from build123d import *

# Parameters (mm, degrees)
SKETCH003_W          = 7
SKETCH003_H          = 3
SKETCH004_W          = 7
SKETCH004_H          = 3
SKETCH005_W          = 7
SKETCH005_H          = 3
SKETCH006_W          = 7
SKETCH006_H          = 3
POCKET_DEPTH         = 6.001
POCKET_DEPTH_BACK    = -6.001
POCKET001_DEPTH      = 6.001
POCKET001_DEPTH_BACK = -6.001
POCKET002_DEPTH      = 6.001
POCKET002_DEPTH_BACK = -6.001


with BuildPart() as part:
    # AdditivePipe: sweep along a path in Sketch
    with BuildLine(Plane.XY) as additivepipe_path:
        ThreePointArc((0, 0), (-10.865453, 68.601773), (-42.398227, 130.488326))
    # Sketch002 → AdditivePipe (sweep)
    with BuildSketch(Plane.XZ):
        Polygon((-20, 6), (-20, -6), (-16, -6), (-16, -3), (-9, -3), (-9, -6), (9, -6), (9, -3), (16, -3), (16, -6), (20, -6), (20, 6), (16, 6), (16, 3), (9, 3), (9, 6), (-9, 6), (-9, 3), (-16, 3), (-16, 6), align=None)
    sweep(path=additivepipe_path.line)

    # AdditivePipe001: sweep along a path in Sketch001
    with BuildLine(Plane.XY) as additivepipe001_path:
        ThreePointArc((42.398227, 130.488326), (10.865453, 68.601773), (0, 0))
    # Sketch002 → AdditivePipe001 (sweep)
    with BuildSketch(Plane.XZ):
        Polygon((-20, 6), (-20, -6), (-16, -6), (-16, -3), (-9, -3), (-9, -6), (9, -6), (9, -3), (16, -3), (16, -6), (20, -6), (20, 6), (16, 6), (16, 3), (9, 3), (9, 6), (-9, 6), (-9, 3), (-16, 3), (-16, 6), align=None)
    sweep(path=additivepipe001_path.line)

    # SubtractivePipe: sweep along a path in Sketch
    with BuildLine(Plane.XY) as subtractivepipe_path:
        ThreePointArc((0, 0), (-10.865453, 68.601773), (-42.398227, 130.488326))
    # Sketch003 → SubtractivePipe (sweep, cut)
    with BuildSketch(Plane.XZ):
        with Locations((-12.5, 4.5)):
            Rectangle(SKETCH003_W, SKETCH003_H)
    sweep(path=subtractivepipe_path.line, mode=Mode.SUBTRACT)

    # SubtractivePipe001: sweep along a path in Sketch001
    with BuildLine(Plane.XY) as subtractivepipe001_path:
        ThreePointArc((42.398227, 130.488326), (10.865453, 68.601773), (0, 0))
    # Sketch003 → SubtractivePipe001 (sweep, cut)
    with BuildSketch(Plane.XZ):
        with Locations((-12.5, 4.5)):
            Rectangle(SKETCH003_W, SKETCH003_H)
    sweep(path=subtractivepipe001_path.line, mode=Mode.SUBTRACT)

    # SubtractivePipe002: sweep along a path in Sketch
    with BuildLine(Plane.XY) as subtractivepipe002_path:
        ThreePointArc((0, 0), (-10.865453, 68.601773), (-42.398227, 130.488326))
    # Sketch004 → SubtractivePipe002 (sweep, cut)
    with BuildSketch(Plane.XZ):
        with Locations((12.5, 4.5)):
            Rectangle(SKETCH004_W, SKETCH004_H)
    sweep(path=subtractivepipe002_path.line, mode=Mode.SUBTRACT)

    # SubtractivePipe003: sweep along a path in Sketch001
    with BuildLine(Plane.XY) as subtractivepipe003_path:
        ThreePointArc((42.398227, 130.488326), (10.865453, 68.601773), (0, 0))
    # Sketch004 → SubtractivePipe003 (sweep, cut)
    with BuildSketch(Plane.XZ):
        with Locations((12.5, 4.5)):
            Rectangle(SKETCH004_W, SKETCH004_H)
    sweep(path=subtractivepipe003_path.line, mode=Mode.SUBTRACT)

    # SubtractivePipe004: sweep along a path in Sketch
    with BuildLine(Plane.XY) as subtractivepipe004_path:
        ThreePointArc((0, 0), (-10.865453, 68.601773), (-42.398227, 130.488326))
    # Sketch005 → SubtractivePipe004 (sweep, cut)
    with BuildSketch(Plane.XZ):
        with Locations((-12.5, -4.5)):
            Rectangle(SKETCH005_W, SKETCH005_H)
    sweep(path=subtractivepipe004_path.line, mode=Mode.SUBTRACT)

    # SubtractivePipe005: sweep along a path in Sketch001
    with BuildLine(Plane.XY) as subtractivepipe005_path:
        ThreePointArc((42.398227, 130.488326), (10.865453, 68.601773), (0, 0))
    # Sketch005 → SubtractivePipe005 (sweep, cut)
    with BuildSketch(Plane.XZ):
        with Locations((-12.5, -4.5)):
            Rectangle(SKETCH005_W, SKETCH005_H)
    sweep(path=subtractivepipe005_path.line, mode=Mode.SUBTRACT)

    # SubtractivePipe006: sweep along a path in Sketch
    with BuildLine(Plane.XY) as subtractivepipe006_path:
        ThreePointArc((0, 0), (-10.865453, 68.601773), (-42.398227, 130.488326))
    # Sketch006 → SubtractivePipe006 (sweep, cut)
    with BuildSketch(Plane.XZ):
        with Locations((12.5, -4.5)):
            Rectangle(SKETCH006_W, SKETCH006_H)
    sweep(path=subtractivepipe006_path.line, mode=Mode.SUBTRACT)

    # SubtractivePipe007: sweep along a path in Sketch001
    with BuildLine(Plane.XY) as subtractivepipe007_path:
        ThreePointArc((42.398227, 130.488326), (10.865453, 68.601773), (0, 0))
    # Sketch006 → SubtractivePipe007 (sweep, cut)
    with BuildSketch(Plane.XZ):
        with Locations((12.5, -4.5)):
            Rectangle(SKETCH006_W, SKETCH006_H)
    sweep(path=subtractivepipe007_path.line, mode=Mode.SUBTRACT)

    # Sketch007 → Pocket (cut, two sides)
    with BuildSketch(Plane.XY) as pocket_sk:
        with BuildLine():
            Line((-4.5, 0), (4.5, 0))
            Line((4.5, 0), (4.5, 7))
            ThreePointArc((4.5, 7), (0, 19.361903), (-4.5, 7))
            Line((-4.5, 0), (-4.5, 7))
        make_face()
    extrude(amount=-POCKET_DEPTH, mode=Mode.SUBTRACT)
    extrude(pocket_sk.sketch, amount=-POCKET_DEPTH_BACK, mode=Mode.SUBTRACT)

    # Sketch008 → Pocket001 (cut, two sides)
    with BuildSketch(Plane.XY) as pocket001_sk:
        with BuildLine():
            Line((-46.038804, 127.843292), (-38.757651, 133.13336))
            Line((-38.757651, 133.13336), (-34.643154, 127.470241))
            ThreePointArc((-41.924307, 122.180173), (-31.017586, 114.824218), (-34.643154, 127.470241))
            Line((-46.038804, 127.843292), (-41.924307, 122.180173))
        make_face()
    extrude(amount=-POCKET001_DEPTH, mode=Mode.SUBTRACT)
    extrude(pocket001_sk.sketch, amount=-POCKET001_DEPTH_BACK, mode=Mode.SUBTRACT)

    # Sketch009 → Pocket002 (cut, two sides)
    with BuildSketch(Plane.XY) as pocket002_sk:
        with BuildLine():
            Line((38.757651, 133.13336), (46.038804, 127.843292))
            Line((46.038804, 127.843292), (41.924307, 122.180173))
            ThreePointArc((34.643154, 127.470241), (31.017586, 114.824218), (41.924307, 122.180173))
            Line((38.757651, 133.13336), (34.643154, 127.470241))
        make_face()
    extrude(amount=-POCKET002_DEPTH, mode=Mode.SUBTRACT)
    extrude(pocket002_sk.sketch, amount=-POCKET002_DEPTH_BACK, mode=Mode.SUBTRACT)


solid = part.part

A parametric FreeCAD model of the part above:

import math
import FreeCAD as App
import Part
import Sketcher

V = App.Vector
Q = App.Units.Quantity

doc = App.newDocument("Part")
body = doc.addObject("PartDesign::Body", "Body")

sketch1 = doc.addObject("Sketcher::SketchObject", "Sketch")
body.addObject(sketch1)
sketch1.AttachmentSupport = (doc.XZ_Plane, [""])
sketch1.MapMode = "FlatFace"
sketch1.addGeometry(Part.LineSegment(V(-20, 6, 0), V(-20, -6, 0)), False)
sketch1.addGeometry(Part.LineSegment(V(-20, -6, 0), V(-16, -6, 0)), False)
sketch1.addGeometry(Part.LineSegment(V(-16, -6, 0), V(-16, -3, 0)), False)
sketch1.addGeometry(Part.LineSegment(V(-16, -3, 0), V(-9, -3, 0)), False)
sketch1.addGeometry(Part.LineSegment(V(-9, -3, 0), V(-9, -6, 0)), False)
sketch1.addGeometry(Part.LineSegment(V(-9, -6, 0), V(9, -6, 0)), False)
sketch1.addGeometry(Part.LineSegment(V(9, -6, 0), V(9, -3, 0)), False)
sketch1.addGeometry(Part.LineSegment(V(9, -3, 0), V(16, -3, 0)), False)
sketch1.addGeometry(Part.LineSegment(V(16, -3, 0), V(16, -6, 0)), False)
sketch1.addGeometry(Part.LineSegment(V(16, -6, 0), V(20, -6, 0)), False)
sketch1.addGeometry(Part.LineSegment(V(20, -6, 0), V(20, 6, 0)), False)
sketch1.addGeometry(Part.LineSegment(V(20, 6, 0), V(16, 6, 0)), False)
sketch1.addGeometry(Part.LineSegment(V(16, 6, 0), V(16, 3, 0)), False)
sketch1.addGeometry(Part.LineSegment(V(16, 3, 0), V(9, 3, 0)), False)
sketch1.addGeometry(Part.LineSegment(V(9, 3, 0), V(9, 6, 0)), False)
sketch1.addGeometry(Part.LineSegment(V(9, 6, 0), V(-9, 6, 0)), False)
sketch1.addGeometry(Part.LineSegment(V(-9, 6, 0), V(-9, 3, 0)), False)
sketch1.addGeometry(Part.LineSegment(V(-9, 3, 0), V(-16, 3, 0)), False)
sketch1.addGeometry(Part.LineSegment(V(-16, 3, 0), V(-16, 6, 0)), False)
sketch1.addGeometry(Part.LineSegment(V(-16, 6, 0), V(-20, 6, 0)), False)
sketch1.addConstraint(Sketcher.Constraint("Coincident", 0, 2, 1, 1))
sketch1.addConstraint(Sketcher.Constraint("Coincident", 1, 2, 2, 1))
sketch1.addConstraint(Sketcher.Constraint("Coincident", 2, 2, 3, 1))
sketch1.addConstraint(Sketcher.Constraint("Coincident", 3, 2, 4, 1))
sketch1.addConstraint(Sketcher.Constraint("Coincident", 4, 2, 5, 1))
sketch1.addConstraint(Sketcher.Constraint("Coincident", 5, 2, 6, 1))
sketch1.addConstraint(Sketcher.Constraint("Coincident", 6, 2, 7, 1))
sketch1.addConstraint(Sketcher.Constraint("Coincident", 7, 2, 8, 1))
sketch1.addConstraint(Sketcher.Constraint("Coincident", 8, 2, 9, 1))
sketch1.addConstraint(Sketcher.Constraint("Coincident", 9, 2, 10, 1))
sketch1.addConstraint(Sketcher.Constraint("Coincident", 10, 2, 11, 1))
sketch1.addConstraint(Sketcher.Constraint("Coincident", 11, 2, 12, 1))
sketch1.addConstraint(Sketcher.Constraint("Coincident", 12, 2, 13, 1))
sketch1.addConstraint(Sketcher.Constraint("Coincident", 13, 2, 14, 1))
sketch1.addConstraint(Sketcher.Constraint("Coincident", 14, 2, 15, 1))
sketch1.addConstraint(Sketcher.Constraint("Coincident", 15, 2, 16, 1))
sketch1.addConstraint(Sketcher.Constraint("Coincident", 16, 2, 17, 1))
sketch1.addConstraint(Sketcher.Constraint("Coincident", 17, 2, 18, 1))
sketch1.addConstraint(Sketcher.Constraint("Coincident", 18, 2, 19, 1))
sketch1.addConstraint(Sketcher.Constraint("Coincident", 19, 2, 0, 1))
sketch1.addConstraint(Sketcher.Constraint("Vertical", 0))
sketch1.addConstraint(Sketcher.Constraint("Horizontal", 1))
sketch1.addConstraint(Sketcher.Constraint("Vertical", 2))
sketch1.addConstraint(Sketcher.Constraint("Horizontal", 3))
sketch1.addConstraint(Sketcher.Constraint("Vertical", 4))
sketch1.addConstraint(Sketcher.Constraint("Horizontal", 5))
sketch1.addConstraint(Sketcher.Constraint("Vertical", 6))
sketch1.addConstraint(Sketcher.Constraint("Horizontal", 7))
sketch1.addConstraint(Sketcher.Constraint("Vertical", 8))
sketch1.addConstraint(Sketcher.Constraint("Horizontal", 9))
sketch1.addConstraint(Sketcher.Constraint("Vertical", 10))
sketch1.addConstraint(Sketcher.Constraint("Horizontal", 11))
sketch1.addConstraint(Sketcher.Constraint("Vertical", 12))
sketch1.addConstraint(Sketcher.Constraint("Horizontal", 13))
sketch1.addConstraint(Sketcher.Constraint("Vertical", 14))
sketch1.addConstraint(Sketcher.Constraint("Horizontal", 15))
sketch1.addConstraint(Sketcher.Constraint("Vertical", 16))
sketch1.addConstraint(Sketcher.Constraint("Horizontal", 17))
sketch1.addConstraint(Sketcher.Constraint("Vertical", 18))
sketch1.addConstraint(Sketcher.Constraint("Horizontal", 19))
sketch1.addConstraint(Sketcher.Constraint("Symmetric", 0, 2, 10, 2, -1, 1))
sketch1.addConstraint(Sketcher.Constraint("Symmetric", 2, 2, 12, 2, -1, 1))
sketch1.addConstraint(Sketcher.Constraint("Symmetric", 4, 2, 14, 2, -1, 1))
sketch1.addConstraint(Sketcher.Constraint("Symmetric", 6, 2, 16, 2, -1, 1))
sketch1.addConstraint(Sketcher.Constraint("Symmetric", 8, 2, 18, 2, -1, 1))
sketch1.addConstraint(Sketcher.Constraint("Symmetric", 3, 2, 6, 2, -2))
sketch1.addConstraint(Sketcher.Constraint("Symmetric", 1, 2, 8, 2, -2))
sketch1.addConstraint(Sketcher.Constraint("Horizontal", 1, 2, 4, 2))
sketch1.addConstraint(Sketcher.Constraint("DistanceX", 1, 1, 1, 2, Q("4 mm")))
sketch1.addConstraint(Sketcher.Constraint("DistanceX", 3, 1, 3, 2, Q("7 mm")))
sketch1.addConstraint(Sketcher.Constraint("DistanceX", 5, 1, 5, 2, Q("18 mm")))
sketch1.addConstraint(Sketcher.Constraint("DistanceY", 0, 2, 0, 1, Q("12 mm")))
sketch1.addConstraint(Sketcher.Constraint("DistanceY", 2, 1, 2, 2, Q("3 mm")))

sketch2 = doc.addObject("Sketcher::SketchObject", "Sketch001")
body.addObject(sketch2)
sketch2.AttachmentSupport = (doc.XY_Plane, [""])
sketch2.MapMode = "FlatFace"
sketch2.addGeometry(Part.ArcOfCircle(Part.Circle(V(-221.999993, 0.000002, 0), V(0, 0, 1), 221.999993), math.radians(-0.000001), math.radians(36)), False)
sketch2.addConstraint(Sketcher.Constraint("Coincident", 0, 1, -1, 1))
sketch2.addConstraint(Sketcher.Constraint("Radius", 0, Q("221.999993 mm")))
sketch2.addConstraint(Sketcher.Constraint("DistanceX", 0, 2, -1, 1, Q("42.398227 mm")))
sketch2.addConstraint(Sketcher.Constraint("DistanceY", -1, 1, 0, 2, Q("130.488326 mm")))
doc.recompute()

additivepipe = doc.addObject("PartDesign::AdditivePipe", "AdditivePipe")
body.addObject(additivepipe)
additivepipe.Profile = sketch1
additivepipe.Spine = (sketch2, ["Edge1"])

sketch3 = doc.addObject("Sketcher::SketchObject", "Sketch002")
body.addObject(sketch3)
sketch3.AttachmentSupport = (doc.XZ_Plane, [""])
sketch3.MapMode = "FlatFace"
sketch3.addGeometry(Part.LineSegment(V(-20, 6, 0), V(-20, -6, 0)), False)
sketch3.addGeometry(Part.LineSegment(V(-20, -6, 0), V(-16, -6, 0)), False)
sketch3.addGeometry(Part.LineSegment(V(-16, -6, 0), V(-16, -3, 0)), False)
sketch3.addGeometry(Part.LineSegment(V(-16, -3, 0), V(-9, -3, 0)), False)
sketch3.addGeometry(Part.LineSegment(V(-9, -3, 0), V(-9, -6, 0)), False)
sketch3.addGeometry(Part.LineSegment(V(-9, -6, 0), V(9, -6, 0)), False)
sketch3.addGeometry(Part.LineSegment(V(9, -6, 0), V(9, -3, 0)), False)
sketch3.addGeometry(Part.LineSegment(V(9, -3, 0), V(16, -3, 0)), False)
sketch3.addGeometry(Part.LineSegment(V(16, -3, 0), V(16, -6, 0)), False)
sketch3.addGeometry(Part.LineSegment(V(16, -6, 0), V(20, -6, 0)), False)
sketch3.addGeometry(Part.LineSegment(V(20, -6, 0), V(20, 6, 0)), False)
sketch3.addGeometry(Part.LineSegment(V(20, 6, 0), V(16, 6, 0)), False)
sketch3.addGeometry(Part.LineSegment(V(16, 6, 0), V(16, 3, 0)), False)
sketch3.addGeometry(Part.LineSegment(V(16, 3, 0), V(9, 3, 0)), False)
sketch3.addGeometry(Part.LineSegment(V(9, 3, 0), V(9, 6, 0)), False)
sketch3.addGeometry(Part.LineSegment(V(9, 6, 0), V(-9, 6, 0)), False)
sketch3.addGeometry(Part.LineSegment(V(-9, 6, 0), V(-9, 3, 0)), False)
sketch3.addGeometry(Part.LineSegment(V(-9, 3, 0), V(-16, 3, 0)), False)
sketch3.addGeometry(Part.LineSegment(V(-16, 3, 0), V(-16, 6, 0)), False)
sketch3.addGeometry(Part.LineSegment(V(-16, 6, 0), V(-20, 6, 0)), False)
sketch3.addConstraint(Sketcher.Constraint("Coincident", 0, 2, 1, 1))
sketch3.addConstraint(Sketcher.Constraint("Coincident", 1, 2, 2, 1))
sketch3.addConstraint(Sketcher.Constraint("Coincident", 2, 2, 3, 1))
sketch3.addConstraint(Sketcher.Constraint("Coincident", 3, 2, 4, 1))
sketch3.addConstraint(Sketcher.Constraint("Coincident", 4, 2, 5, 1))
sketch3.addConstraint(Sketcher.Constraint("Coincident", 5, 2, 6, 1))
sketch3.addConstraint(Sketcher.Constraint("Coincident", 6, 2, 7, 1))
sketch3.addConstraint(Sketcher.Constraint("Coincident", 7, 2, 8, 1))
sketch3.addConstraint(Sketcher.Constraint("Coincident", 8, 2, 9, 1))
sketch3.addConstraint(Sketcher.Constraint("Coincident", 9, 2, 10, 1))
sketch3.addConstraint(Sketcher.Constraint("Coincident", 10, 2, 11, 1))
sketch3.addConstraint(Sketcher.Constraint("Coincident", 11, 2, 12, 1))
sketch3.addConstraint(Sketcher.Constraint("Coincident", 12, 2, 13, 1))
sketch3.addConstraint(Sketcher.Constraint("Coincident", 13, 2, 14, 1))
sketch3.addConstraint(Sketcher.Constraint("Coincident", 14, 2, 15, 1))
sketch3.addConstraint(Sketcher.Constraint("Coincident", 15, 2, 16, 1))
sketch3.addConstraint(Sketcher.Constraint("Coincident", 16, 2, 17, 1))
sketch3.addConstraint(Sketcher.Constraint("Coincident", 17, 2, 18, 1))
sketch3.addConstraint(Sketcher.Constraint("Coincident", 18, 2, 19, 1))
sketch3.addConstraint(Sketcher.Constraint("Coincident", 19, 2, 0, 1))
sketch3.addConstraint(Sketcher.Constraint("Vertical", 0))
sketch3.addConstraint(Sketcher.Constraint("Horizontal", 1))
sketch3.addConstraint(Sketcher.Constraint("Vertical", 2))
sketch3.addConstraint(Sketcher.Constraint("Horizontal", 3))
sketch3.addConstraint(Sketcher.Constraint("Vertical", 4))
sketch3.addConstraint(Sketcher.Constraint("Horizontal", 5))
sketch3.addConstraint(Sketcher.Constraint("Vertical", 6))
sketch3.addConstraint(Sketcher.Constraint("Horizontal", 7))
sketch3.addConstraint(Sketcher.Constraint("Vertical", 8))
sketch3.addConstraint(Sketcher.Constraint("Horizontal", 9))
sketch3.addConstraint(Sketcher.Constraint("Vertical", 10))
sketch3.addConstraint(Sketcher.Constraint("Horizontal", 11))
sketch3.addConstraint(Sketcher.Constraint("Vertical", 12))
sketch3.addConstraint(Sketcher.Constraint("Horizontal", 13))
sketch3.addConstraint(Sketcher.Constraint("Vertical", 14))
sketch3.addConstraint(Sketcher.Constraint("Horizontal", 15))
sketch3.addConstraint(Sketcher.Constraint("Vertical", 16))
sketch3.addConstraint(Sketcher.Constraint("Horizontal", 17))
sketch3.addConstraint(Sketcher.Constraint("Vertical", 18))
sketch3.addConstraint(Sketcher.Constraint("Horizontal", 19))
sketch3.addConstraint(Sketcher.Constraint("Symmetric", 0, 2, 10, 2, -1, 1))
sketch3.addConstraint(Sketcher.Constraint("Symmetric", 2, 2, 12, 2, -1, 1))
sketch3.addConstraint(Sketcher.Constraint("Symmetric", 4, 2, 14, 2, -1, 1))
sketch3.addConstraint(Sketcher.Constraint("Symmetric", 6, 2, 16, 2, -1, 1))
sketch3.addConstraint(Sketcher.Constraint("Symmetric", 8, 2, 18, 2, -1, 1))
sketch3.addConstraint(Sketcher.Constraint("Symmetric", 3, 2, 6, 2, -2))
sketch3.addConstraint(Sketcher.Constraint("Symmetric", 1, 2, 8, 2, -2))
sketch3.addConstraint(Sketcher.Constraint("Horizontal", 1, 2, 4, 2))
sketch3.addConstraint(Sketcher.Constraint("DistanceX", 1, 1, 1, 2, Q("4 mm")))
sketch3.addConstraint(Sketcher.Constraint("DistanceX", 3, 1, 3, 2, Q("7 mm")))
sketch3.addConstraint(Sketcher.Constraint("DistanceX", 5, 1, 5, 2, Q("18 mm")))
sketch3.addConstraint(Sketcher.Constraint("DistanceY", 0, 2, 0, 1, Q("12 mm")))
sketch3.addConstraint(Sketcher.Constraint("DistanceY", 2, 1, 2, 2, Q("3 mm")))

sketch4 = doc.addObject("Sketcher::SketchObject", "Sketch003")
body.addObject(sketch4)
sketch4.AttachmentSupport = (doc.XY_Plane, [""])
sketch4.MapMode = "FlatFace"
sketch4.addGeometry(Part.ArcOfCircle(Part.Circle(V(221.999993, 0.000002, 0), V(0, 0, 1), 221.999993), math.radians(144), math.radians(180.000001)), False)
sketch4.addConstraint(Sketcher.Constraint("Coincident", 0, 2, -1, 1))
sketch4.addConstraint(Sketcher.Constraint("Radius", 0, Q("221.999993 mm")))
sketch4.addConstraint(Sketcher.Constraint("DistanceX", -1, 1, 0, 1, Q("42.398227 mm")))
sketch4.addConstraint(Sketcher.Constraint("DistanceY", -1, 1, 0, 1, Q("130.488326 mm")))
doc.recompute()

additivepipe2 = doc.addObject("PartDesign::AdditivePipe", "AdditivePipe001")
body.addObject(additivepipe2)
additivepipe2.Profile = sketch3
additivepipe2.Spine = (sketch4, ["Edge1"])

sketch5 = doc.addObject("Sketcher::SketchObject", "Sketch004")
body.addObject(sketch5)
sketch5.AttachmentSupport = (doc.XZ_Plane, [""])
sketch5.MapMode = "FlatFace"
sketch5.addGeometry(Part.LineSegment(V(-16, 6, 0), V(-16, 3, 0)), False)
sketch5.addGeometry(Part.LineSegment(V(-16, 3, 0), V(-9, 3, 0)), False)
sketch5.addGeometry(Part.LineSegment(V(-9, 3, 0), V(-9, 6, 0)), False)
sketch5.addGeometry(Part.LineSegment(V(-9, 6, 0), V(-16, 6, 0)), False)
sketch5.addConstraint(Sketcher.Constraint("Coincident", 0, 2, 1, 1))
sketch5.addConstraint(Sketcher.Constraint("Coincident", 1, 2, 2, 1))
sketch5.addConstraint(Sketcher.Constraint("Coincident", 2, 2, 3, 1))
sketch5.addConstraint(Sketcher.Constraint("Coincident", 3, 2, 0, 1))
sketch5.addConstraint(Sketcher.Constraint("Vertical", 0))
sketch5.addConstraint(Sketcher.Constraint("Horizontal", 1))
sketch5.addConstraint(Sketcher.Constraint("Vertical", 2))
sketch5.addConstraint(Sketcher.Constraint("Horizontal", 3))
sketch5.addConstraint(Sketcher.Constraint("DistanceX", 1, 1, 1, 2, Q("7 mm")))
sketch5.addConstraint(Sketcher.Constraint("DistanceY", 0, 2, 0, 1, Q("3 mm")))
sketch5.addConstraint(Sketcher.Constraint("DistanceX", 0, 2, -1, 1, Q("16 mm")))
sketch5.addConstraint(Sketcher.Constraint("DistanceY", -1, 1, 0, 2, Q("3 mm")))

sketch6 = doc.addObject("Sketcher::SketchObject", "Sketch005")
body.addObject(sketch6)
sketch6.AttachmentSupport = (doc.XY_Plane, [""])
sketch6.MapMode = "FlatFace"
sketch6.addGeometry(Part.ArcOfCircle(Part.Circle(V(-221.999993, 0.000002, 0), V(0, 0, 1), 221.999993), math.radians(-0.000001), math.radians(36)), False)
sketch6.addConstraint(Sketcher.Constraint("Coincident", 0, 1, -1, 1))
sketch6.addConstraint(Sketcher.Constraint("Radius", 0, Q("221.999993 mm")))
sketch6.addConstraint(Sketcher.Constraint("DistanceX", 0, 2, -1, 1, Q("42.398227 mm")))
sketch6.addConstraint(Sketcher.Constraint("DistanceY", -1, 1, 0, 2, Q("130.488326 mm")))
doc.recompute()

subtractivepipe = doc.addObject("PartDesign::SubtractivePipe", "SubtractivePipe")
body.addObject(subtractivepipe)
subtractivepipe.Profile = sketch5
subtractivepipe.Spine = (sketch6, ["Edge1"])

sketch7 = doc.addObject("Sketcher::SketchObject", "Sketch006")
body.addObject(sketch7)
sketch7.AttachmentSupport = (doc.XZ_Plane, [""])
sketch7.MapMode = "FlatFace"
sketch7.addGeometry(Part.LineSegment(V(-16, 6, 0), V(-16, 3, 0)), False)
sketch7.addGeometry(Part.LineSegment(V(-16, 3, 0), V(-9, 3, 0)), False)
sketch7.addGeometry(Part.LineSegment(V(-9, 3, 0), V(-9, 6, 0)), False)
sketch7.addGeometry(Part.LineSegment(V(-9, 6, 0), V(-16, 6, 0)), False)
sketch7.addConstraint(Sketcher.Constraint("Coincident", 0, 2, 1, 1))
sketch7.addConstraint(Sketcher.Constraint("Coincident", 1, 2, 2, 1))
sketch7.addConstraint(Sketcher.Constraint("Coincident", 2, 2, 3, 1))
sketch7.addConstraint(Sketcher.Constraint("Coincident", 3, 2, 0, 1))
sketch7.addConstraint(Sketcher.Constraint("Vertical", 0))
sketch7.addConstraint(Sketcher.Constraint("Horizontal", 1))
sketch7.addConstraint(Sketcher.Constraint("Vertical", 2))
sketch7.addConstraint(Sketcher.Constraint("Horizontal", 3))
sketch7.addConstraint(Sketcher.Constraint("DistanceX", 1, 1, 1, 2, Q("7 mm")))
sketch7.addConstraint(Sketcher.Constraint("DistanceY", 0, 2, 0, 1, Q("3 mm")))
sketch7.addConstraint(Sketcher.Constraint("DistanceX", 0, 2, -1, 1, Q("16 mm")))
sketch7.addConstraint(Sketcher.Constraint("DistanceY", -1, 1, 0, 2, Q("3 mm")))

sketch8 = doc.addObject("Sketcher::SketchObject", "Sketch007")
body.addObject(sketch8)
sketch8.AttachmentSupport = (doc.XY_Plane, [""])
sketch8.MapMode = "FlatFace"
sketch8.addGeometry(Part.ArcOfCircle(Part.Circle(V(221.999993, 0.000002, 0), V(0, 0, 1), 221.999993), math.radians(144), math.radians(180.000001)), False)
sketch8.addConstraint(Sketcher.Constraint("Coincident", 0, 2, -1, 1))
sketch8.addConstraint(Sketcher.Constraint("Radius", 0, Q("221.999993 mm")))
sketch8.addConstraint(Sketcher.Constraint("DistanceX", -1, 1, 0, 1, Q("42.398227 mm")))
sketch8.addConstraint(Sketcher.Constraint("DistanceY", -1, 1, 0, 1, Q("130.488326 mm")))
doc.recompute()

subtractivepipe2 = doc.addObject("PartDesign::SubtractivePipe", "SubtractivePipe001")
body.addObject(subtractivepipe2)
subtractivepipe2.Profile = sketch7
subtractivepipe2.Spine = (sketch8, ["Edge1"])

sketch9 = doc.addObject("Sketcher::SketchObject", "Sketch008")
body.addObject(sketch9)
sketch9.AttachmentSupport = (doc.XZ_Plane, [""])
sketch9.MapMode = "FlatFace"
sketch9.addGeometry(Part.LineSegment(V(9, 6, 0), V(9, 3, 0)), False)
sketch9.addGeometry(Part.LineSegment(V(9, 3, 0), V(16, 3, 0)), False)
sketch9.addGeometry(Part.LineSegment(V(16, 3, 0), V(16, 6, 0)), False)
sketch9.addGeometry(Part.LineSegment(V(16, 6, 0), V(9, 6, 0)), False)
sketch9.addConstraint(Sketcher.Constraint("Coincident", 0, 2, 1, 1))
sketch9.addConstraint(Sketcher.Constraint("Coincident", 1, 2, 2, 1))
sketch9.addConstraint(Sketcher.Constraint("Coincident", 2, 2, 3, 1))
sketch9.addConstraint(Sketcher.Constraint("Coincident", 3, 2, 0, 1))
sketch9.addConstraint(Sketcher.Constraint("Vertical", 0))
sketch9.addConstraint(Sketcher.Constraint("Horizontal", 1))
sketch9.addConstraint(Sketcher.Constraint("Vertical", 2))
sketch9.addConstraint(Sketcher.Constraint("Horizontal", 3))
sketch9.addConstraint(Sketcher.Constraint("DistanceX", 1, 1, 1, 2, Q("7 mm")))
sketch9.addConstraint(Sketcher.Constraint("DistanceY", 0, 2, 0, 1, Q("3 mm")))
sketch9.addConstraint(Sketcher.Constraint("DistanceX", -1, 1, 0, 2, Q("9 mm")))
sketch9.addConstraint(Sketcher.Constraint("DistanceY", -1, 1, 0, 2, Q("3 mm")))

sketch10 = doc.addObject("Sketcher::SketchObject", "Sketch009")
body.addObject(sketch10)
sketch10.AttachmentSupport = (doc.XY_Plane, [""])
sketch10.MapMode = "FlatFace"
sketch10.addGeometry(Part.ArcOfCircle(Part.Circle(V(-221.999993, 0.000002, 0), V(0, 0, 1), 221.999993), math.radians(-0.000001), math.radians(36)), False)
sketch10.addConstraint(Sketcher.Constraint("Coincident", 0, 1, -1, 1))
sketch10.addConstraint(Sketcher.Constraint("Radius", 0, Q("221.999993 mm")))
sketch10.addConstraint(Sketcher.Constraint("DistanceX", 0, 2, -1, 1, Q("42.398227 mm")))
sketch10.addConstraint(Sketcher.Constraint("DistanceY", -1, 1, 0, 2, Q("130.488326 mm")))
doc.recompute()

subtractivepipe3 = doc.addObject("PartDesign::SubtractivePipe", "SubtractivePipe002")
body.addObject(subtractivepipe3)
subtractivepipe3.Profile = sketch9
subtractivepipe3.Spine = (sketch10, ["Edge1"])

sketch11 = doc.addObject("Sketcher::SketchObject", "Sketch010")
body.addObject(sketch11)
sketch11.AttachmentSupport = (doc.XZ_Plane, [""])
sketch11.MapMode = "FlatFace"
sketch11.addGeometry(Part.LineSegment(V(9, 6, 0), V(9, 3, 0)), False)
sketch11.addGeometry(Part.LineSegment(V(9, 3, 0), V(16, 3, 0)), False)
sketch11.addGeometry(Part.LineSegment(V(16, 3, 0), V(16, 6, 0)), False)
sketch11.addGeometry(Part.LineSegment(V(16, 6, 0), V(9, 6, 0)), False)
sketch11.addConstraint(Sketcher.Constraint("Coincident", 0, 2, 1, 1))
sketch11.addConstraint(Sketcher.Constraint("Coincident", 1, 2, 2, 1))
sketch11.addConstraint(Sketcher.Constraint("Coincident", 2, 2, 3, 1))
sketch11.addConstraint(Sketcher.Constraint("Coincident", 3, 2, 0, 1))
sketch11.addConstraint(Sketcher.Constraint("Vertical", 0))
sketch11.addConstraint(Sketcher.Constraint("Horizontal", 1))
sketch11.addConstraint(Sketcher.Constraint("Vertical", 2))
sketch11.addConstraint(Sketcher.Constraint("Horizontal", 3))
sketch11.addConstraint(Sketcher.Constraint("DistanceX", 1, 1, 1, 2, Q("7 mm")))
sketch11.addConstraint(Sketcher.Constraint("DistanceY", 0, 2, 0, 1, Q("3 mm")))
sketch11.addConstraint(Sketcher.Constraint("DistanceX", -1, 1, 0, 2, Q("9 mm")))
sketch11.addConstraint(Sketcher.Constraint("DistanceY", -1, 1, 0, 2, Q("3 mm")))

sketch12 = doc.addObject("Sketcher::SketchObject", "Sketch011")
body.addObject(sketch12)
sketch12.AttachmentSupport = (doc.XY_Plane, [""])
sketch12.MapMode = "FlatFace"
sketch12.addGeometry(Part.ArcOfCircle(Part.Circle(V(221.999993, 0.000002, 0), V(0, 0, 1), 221.999993), math.radians(144), math.radians(180.000001)), False)
sketch12.addConstraint(Sketcher.Constraint("Coincident", 0, 2, -1, 1))
sketch12.addConstraint(Sketcher.Constraint("Radius", 0, Q("221.999993 mm")))
sketch12.addConstraint(Sketcher.Constraint("DistanceX", -1, 1, 0, 1, Q("42.398227 mm")))
sketch12.addConstraint(Sketcher.Constraint("DistanceY", -1, 1, 0, 1, Q("130.488326 mm")))
doc.recompute()

subtractivepipe4 = doc.addObject("PartDesign::SubtractivePipe", "SubtractivePipe003")
body.addObject(subtractivepipe4)
subtractivepipe4.Profile = sketch11
subtractivepipe4.Spine = (sketch12, ["Edge1"])

sketch13 = doc.addObject("Sketcher::SketchObject", "Sketch012")
body.addObject(sketch13)
sketch13.AttachmentSupport = (doc.XZ_Plane, [""])
sketch13.MapMode = "FlatFace"
sketch13.addGeometry(Part.LineSegment(V(-16, -3, 0), V(-16, -6, 0)), False)
sketch13.addGeometry(Part.LineSegment(V(-16, -6, 0), V(-9, -6, 0)), False)
sketch13.addGeometry(Part.LineSegment(V(-9, -6, 0), V(-9, -3, 0)), False)
sketch13.addGeometry(Part.LineSegment(V(-9, -3, 0), V(-16, -3, 0)), False)
sketch13.addConstraint(Sketcher.Constraint("Coincident", 0, 2, 1, 1))
sketch13.addConstraint(Sketcher.Constraint("Coincident", 1, 2, 2, 1))
sketch13.addConstraint(Sketcher.Constraint("Coincident", 2, 2, 3, 1))
sketch13.addConstraint(Sketcher.Constraint("Coincident", 3, 2, 0, 1))
sketch13.addConstraint(Sketcher.Constraint("Vertical", 0))
sketch13.addConstraint(Sketcher.Constraint("Horizontal", 1))
sketch13.addConstraint(Sketcher.Constraint("Vertical", 2))
sketch13.addConstraint(Sketcher.Constraint("Horizontal", 3))
sketch13.addConstraint(Sketcher.Constraint("DistanceX", 1, 1, 1, 2, Q("7 mm")))
sketch13.addConstraint(Sketcher.Constraint("DistanceY", 0, 2, 0, 1, Q("3 mm")))
sketch13.addConstraint(Sketcher.Constraint("DistanceX", 0, 2, -1, 1, Q("16 mm")))
sketch13.addConstraint(Sketcher.Constraint("DistanceY", 0, 2, -1, 1, Q("6 mm")))

sketch14 = doc.addObject("Sketcher::SketchObject", "Sketch013")
body.addObject(sketch14)
sketch14.AttachmentSupport = (doc.XY_Plane, [""])
sketch14.MapMode = "FlatFace"
sketch14.addGeometry(Part.ArcOfCircle(Part.Circle(V(-221.999993, 0.000002, 0), V(0, 0, 1), 221.999993), math.radians(-0.000001), math.radians(36)), False)
sketch14.addConstraint(Sketcher.Constraint("Coincident", 0, 1, -1, 1))
sketch14.addConstraint(Sketcher.Constraint("Radius", 0, Q("221.999993 mm")))
sketch14.addConstraint(Sketcher.Constraint("DistanceX", 0, 2, -1, 1, Q("42.398227 mm")))
sketch14.addConstraint(Sketcher.Constraint("DistanceY", -1, 1, 0, 2, Q("130.488326 mm")))
doc.recompute()

subtractivepipe5 = doc.addObject("PartDesign::SubtractivePipe", "SubtractivePipe004")
body.addObject(subtractivepipe5)
subtractivepipe5.Profile = sketch13
subtractivepipe5.Spine = (sketch14, ["Edge1"])

sketch15 = doc.addObject("Sketcher::SketchObject", "Sketch014")
body.addObject(sketch15)
sketch15.AttachmentSupport = (doc.XZ_Plane, [""])
sketch15.MapMode = "FlatFace"
sketch15.addGeometry(Part.LineSegment(V(-16, -3, 0), V(-16, -6, 0)), False)
sketch15.addGeometry(Part.LineSegment(V(-16, -6, 0), V(-9, -6, 0)), False)
sketch15.addGeometry(Part.LineSegment(V(-9, -6, 0), V(-9, -3, 0)), False)
sketch15.addGeometry(Part.LineSegment(V(-9, -3, 0), V(-16, -3, 0)), False)
sketch15.addConstraint(Sketcher.Constraint("Coincident", 0, 2, 1, 1))
sketch15.addConstraint(Sketcher.Constraint("Coincident", 1, 2, 2, 1))
sketch15.addConstraint(Sketcher.Constraint("Coincident", 2, 2, 3, 1))
sketch15.addConstraint(Sketcher.Constraint("Coincident", 3, 2, 0, 1))
sketch15.addConstraint(Sketcher.Constraint("Vertical", 0))
sketch15.addConstraint(Sketcher.Constraint("Horizontal", 1))
sketch15.addConstraint(Sketcher.Constraint("Vertical", 2))
sketch15.addConstraint(Sketcher.Constraint("Horizontal", 3))
sketch15.addConstraint(Sketcher.Constraint("DistanceX", 1, 1, 1, 2, Q("7 mm")))
sketch15.addConstraint(Sketcher.Constraint("DistanceY", 0, 2, 0, 1, Q("3 mm")))
sketch15.addConstraint(Sketcher.Constraint("DistanceX", 0, 2, -1, 1, Q("16 mm")))
sketch15.addConstraint(Sketcher.Constraint("DistanceY", 0, 2, -1, 1, Q("6 mm")))

sketch16 = doc.addObject("Sketcher::SketchObject", "Sketch015")
body.addObject(sketch16)
sketch16.AttachmentSupport = (doc.XY_Plane, [""])
sketch16.MapMode = "FlatFace"
sketch16.addGeometry(Part.ArcOfCircle(Part.Circle(V(221.999993, 0.000002, 0), V(0, 0, 1), 221.999993), math.radians(144), math.radians(180.000001)), False)
sketch16.addConstraint(Sketcher.Constraint("Coincident", 0, 2, -1, 1))
sketch16.addConstraint(Sketcher.Constraint("Radius", 0, Q("221.999993 mm")))
sketch16.addConstraint(Sketcher.Constraint("DistanceX", -1, 1, 0, 1, Q("42.398227 mm")))
sketch16.addConstraint(Sketcher.Constraint("DistanceY", -1, 1, 0, 1, Q("130.488326 mm")))
doc.recompute()

subtractivepipe6 = doc.addObject("PartDesign::SubtractivePipe", "SubtractivePipe005")
body.addObject(subtractivepipe6)
subtractivepipe6.Profile = sketch15
subtractivepipe6.Spine = (sketch16, ["Edge1"])

sketch17 = doc.addObject("Sketcher::SketchObject", "Sketch016")
body.addObject(sketch17)
sketch17.AttachmentSupport = (doc.XZ_Plane, [""])
sketch17.MapMode = "FlatFace"
sketch17.addGeometry(Part.LineSegment(V(9, -3, 0), V(9, -6, 0)), False)
sketch17.addGeometry(Part.LineSegment(V(9, -6, 0), V(16, -6, 0)), False)
sketch17.addGeometry(Part.LineSegment(V(16, -6, 0), V(16, -3, 0)), False)
sketch17.addGeometry(Part.LineSegment(V(16, -3, 0), V(9, -3, 0)), False)
sketch17.addConstraint(Sketcher.Constraint("Coincident", 0, 2, 1, 1))
sketch17.addConstraint(Sketcher.Constraint("Coincident", 1, 2, 2, 1))
sketch17.addConstraint(Sketcher.Constraint("Coincident", 2, 2, 3, 1))
sketch17.addConstraint(Sketcher.Constraint("Coincident", 3, 2, 0, 1))
sketch17.addConstraint(Sketcher.Constraint("Vertical", 0))
sketch17.addConstraint(Sketcher.Constraint("Horizontal", 1))
sketch17.addConstraint(Sketcher.Constraint("Vertical", 2))
sketch17.addConstraint(Sketcher.Constraint("Horizontal", 3))
sketch17.addConstraint(Sketcher.Constraint("DistanceX", 1, 1, 1, 2, Q("7 mm")))
sketch17.addConstraint(Sketcher.Constraint("DistanceY", 0, 2, 0, 1, Q("3 mm")))
sketch17.addConstraint(Sketcher.Constraint("DistanceX", -1, 1, 0, 2, Q("9 mm")))
sketch17.addConstraint(Sketcher.Constraint("DistanceY", 0, 2, -1, 1, Q("6 mm")))

sketch18 = doc.addObject("Sketcher::SketchObject", "Sketch017")
body.addObject(sketch18)
sketch18.AttachmentSupport = (doc.XY_Plane, [""])
sketch18.MapMode = "FlatFace"
sketch18.addGeometry(Part.ArcOfCircle(Part.Circle(V(-221.999993, 0.000002, 0), V(0, 0, 1), 221.999993), math.radians(-0.000001), math.radians(36)), False)
sketch18.addConstraint(Sketcher.Constraint("Coincident", 0, 1, -1, 1))
sketch18.addConstraint(Sketcher.Constraint("Radius", 0, Q("221.999993 mm")))
sketch18.addConstraint(Sketcher.Constraint("DistanceX", 0, 2, -1, 1, Q("42.398227 mm")))
sketch18.addConstraint(Sketcher.Constraint("DistanceY", -1, 1, 0, 2, Q("130.488326 mm")))
doc.recompute()

subtractivepipe7 = doc.addObject("PartDesign::SubtractivePipe", "SubtractivePipe006")
body.addObject(subtractivepipe7)
subtractivepipe7.Profile = sketch17
subtractivepipe7.Spine = (sketch18, ["Edge1"])

sketch19 = doc.addObject("Sketcher::SketchObject", "Sketch018")
body.addObject(sketch19)
sketch19.AttachmentSupport = (doc.XZ_Plane, [""])
sketch19.MapMode = "FlatFace"
sketch19.addGeometry(Part.LineSegment(V(9, -3, 0), V(9, -6, 0)), False)
sketch19.addGeometry(Part.LineSegment(V(9, -6, 0), V(16, -6, 0)), False)
sketch19.addGeometry(Part.LineSegment(V(16, -6, 0), V(16, -3, 0)), False)
sketch19.addGeometry(Part.LineSegment(V(16, -3, 0), V(9, -3, 0)), False)
sketch19.addConstraint(Sketcher.Constraint("Coincident", 0, 2, 1, 1))
sketch19.addConstraint(Sketcher.Constraint("Coincident", 1, 2, 2, 1))
sketch19.addConstraint(Sketcher.Constraint("Coincident", 2, 2, 3, 1))
sketch19.addConstraint(Sketcher.Constraint("Coincident", 3, 2, 0, 1))
sketch19.addConstraint(Sketcher.Constraint("Vertical", 0))
sketch19.addConstraint(Sketcher.Constraint("Horizontal", 1))
sketch19.addConstraint(Sketcher.Constraint("Vertical", 2))
sketch19.addConstraint(Sketcher.Constraint("Horizontal", 3))
sketch19.addConstraint(Sketcher.Constraint("DistanceX", 1, 1, 1, 2, Q("7 mm")))
sketch19.addConstraint(Sketcher.Constraint("DistanceY", 0, 2, 0, 1, Q("3 mm")))
sketch19.addConstraint(Sketcher.Constraint("DistanceX", -1, 1, 0, 2, Q("9 mm")))
sketch19.addConstraint(Sketcher.Constraint("DistanceY", 0, 2, -1, 1, Q("6 mm")))

sketch20 = doc.addObject("Sketcher::SketchObject", "Sketch019")
body.addObject(sketch20)
sketch20.AttachmentSupport = (doc.XY_Plane, [""])
sketch20.MapMode = "FlatFace"
sketch20.addGeometry(Part.ArcOfCircle(Part.Circle(V(221.999993, 0.000002, 0), V(0, 0, 1), 221.999993), math.radians(144), math.radians(180.000001)), False)
sketch20.addConstraint(Sketcher.Constraint("Coincident", 0, 2, -1, 1))
sketch20.addConstraint(Sketcher.Constraint("Radius", 0, Q("221.999993 mm")))
sketch20.addConstraint(Sketcher.Constraint("DistanceX", -1, 1, 0, 1, Q("42.398227 mm")))
sketch20.addConstraint(Sketcher.Constraint("DistanceY", -1, 1, 0, 1, Q("130.488326 mm")))
doc.recompute()

subtractivepipe8 = doc.addObject("PartDesign::SubtractivePipe", "SubtractivePipe007")
body.addObject(subtractivepipe8)
subtractivepipe8.Profile = sketch19
subtractivepipe8.Spine = (sketch20, ["Edge1"])

sketch21 = doc.addObject("Sketcher::SketchObject", "Sketch020")
body.addObject(sketch21)
sketch21.AttachmentSupport = (doc.XY_Plane, [""])
sketch21.MapMode = "FlatFace"
sketch21.addGeometry(Part.LineSegment(V(-4.5, 0, 0), V(4.5, 0, 0)), False)
sketch21.addGeometry(Part.LineSegment(V(4.5, 0, 0), V(4.5, 7, 0)), False)
sketch21.addGeometry(Part.ArcOfCircle(Part.Circle(V(0, 12.361903, 0), V(0, 0, 1), 7), math.radians(-49.9948), math.radians(229.9948)), False)
sketch21.addGeometry(Part.LineSegment(V(-4.5, 7, 0), V(-4.5, 0, 0)), False)
sketch21.addConstraint(Sketcher.Constraint("Coincident", 0, 2, 1, 1))
sketch21.addConstraint(Sketcher.Constraint("Coincident", 1, 2, 2, 1))
sketch21.addConstraint(Sketcher.Constraint("Coincident", 2, 2, 3, 1))
sketch21.addConstraint(Sketcher.Constraint("Coincident", 3, 2, 0, 1))
sketch21.addConstraint(Sketcher.Constraint("Horizontal", 0))
sketch21.addConstraint(Sketcher.Constraint("Vertical", 1))
sketch21.addConstraint(Sketcher.Constraint("Vertical", 3))
sketch21.addConstraint(Sketcher.Constraint("Symmetric", 0, 2, 3, 2, -1, 1))
sketch21.addConstraint(Sketcher.Constraint("PointOnObject", 2, 3, -2))
sketch21.addConstraint(Sketcher.Constraint("Radius", 2, Q("7 mm")))
sketch21.addConstraint(Sketcher.Constraint("DistanceX", 0, 1, 0, 2, Q("9 mm")))
sketch21.addConstraint(Sketcher.Constraint("DistanceY", 1, 1, 1, 2, Q("7 mm")))
pocket1 = doc.addObject("PartDesign::Pocket", "Pocket")
body.addObject(pocket1)
pocket1.Profile = sketch21
pocket1.Type = "ThroughAll"
pocket1.Midplane = True

sketch22 = doc.addObject("Sketcher::SketchObject", "Sketch021")
body.addObject(sketch22)
sketch22.AttachmentSupport = (doc.XY_Plane, [""])
sketch22.MapMode = "FlatFace"
sketch22.addGeometry(Part.LineSegment(V(-38.757651, 133.13336, 0), V(-46.038804, 127.843292, 0)), False)
sketch22.addGeometry(Part.LineSegment(V(-46.038804, 127.843292, 0), V(-41.924307, 122.180173, 0)), False)
sketch22.addGeometry(Part.ArcOfCircle(Part.Circle(V(-35.132083, 120.487337, 0), V(0, 0, 1), 7), math.radians(166.005206), math.radians(445.994801)), False)
sketch22.addGeometry(Part.LineSegment(V(-34.643154, 127.470241, 0), V(-38.757651, 133.13336, 0)), False)
sketch22.addConstraint(Sketcher.Constraint("Coincident", 0, 2, 1, 1))
sketch22.addConstraint(Sketcher.Constraint("Coincident", 1, 2, 2, 1))
sketch22.addConstraint(Sketcher.Constraint("Coincident", 2, 2, 3, 1))
sketch22.addConstraint(Sketcher.Constraint("Coincident", 3, 2, 0, 1))
sketch22.addConstraint(Sketcher.Constraint("Perpendicular", 0, 1))
sketch22.addConstraint(Sketcher.Constraint("Parallel", 1, 3))
sketch22.addConstraint(Sketcher.Constraint("Equal", 1, 3))
sketch22.addConstraint(Sketcher.Constraint("Radius", 2, Q("7 mm")))
sketch22.addConstraint(Sketcher.Constraint("Angle", 0, Q("-143.999996 deg")))
sketch22.addConstraint(Sketcher.Constraint("Distance", 0, Q("9 mm")))
sketch22.addConstraint(Sketcher.Constraint("Distance", 1, Q("7 mm")))
sketch22.addConstraint(Sketcher.Constraint("DistanceY", -1, 1, 2, 2, Q("127.470241 mm")))
sketch22.addConstraint(Sketcher.Constraint("DistanceX", 3, 2, -1, 1, Q("38.757651 mm")))
pocket2 = doc.addObject("PartDesign::Pocket", "Pocket001")
body.addObject(pocket2)
pocket2.Profile = sketch22
pocket2.Type = "ThroughAll"
pocket2.Midplane = True

sketch23 = doc.addObject("Sketcher::SketchObject", "Sketch022")
body.addObject(sketch23)
sketch23.AttachmentSupport = (doc.XY_Plane, [""])
sketch23.MapMode = "FlatFace"
sketch23.addGeometry(Part.LineSegment(V(46.038804, 127.843292, 0), V(38.757651, 133.13336, 0)), False)
sketch23.addGeometry(Part.LineSegment(V(38.757651, 133.13336, 0), V(34.643154, 127.470241, 0)), False)
sketch23.addGeometry(Part.ArcOfCircle(Part.Circle(V(35.132083, 120.487337, 0), V(0, 0, 1), 7), math.radians(94.005199), math.radians(373.994794)), False)
sketch23.addGeometry(Part.LineSegment(V(41.924307, 122.180173, 0), V(46.038804, 127.843292, 0)), False)
sketch23.addConstraint(Sketcher.Constraint("Coincident", 0, 2, 1, 1))
sketch23.addConstraint(Sketcher.Constraint("Coincident", 1, 2, 2, 1))
sketch23.addConstraint(Sketcher.Constraint("Coincident", 2, 2, 3, 1))
sketch23.addConstraint(Sketcher.Constraint("Coincident", 3, 2, 0, 1))
sketch23.addConstraint(Sketcher.Constraint("Perpendicular", 0, 1))
sketch23.addConstraint(Sketcher.Constraint("Parallel", 1, 3))
sketch23.addConstraint(Sketcher.Constraint("Equal", 1, 3))
sketch23.addConstraint(Sketcher.Constraint("Radius", 2, Q("7 mm")))
sketch23.addConstraint(Sketcher.Constraint("Angle", 0, Q("143.999996 deg")))
sketch23.addConstraint(Sketcher.Constraint("Distance", 0, Q("9 mm")))
sketch23.addConstraint(Sketcher.Constraint("Distance", 1, Q("7 mm")))
sketch23.addConstraint(Sketcher.Constraint("DistanceX", -1, 1, 0, 2, Q("38.757651 mm")))
sketch23.addConstraint(Sketcher.Constraint("DistanceY", -1, 1, 0, 2, Q("133.13336 mm")))
pocket3 = doc.addObject("PartDesign::Pocket", "Pocket002")
body.addObject(pocket3)
pocket3.Profile = sketch23
pocket3.Type = "ThroughAll"
pocket3.Midplane = True

doc.recompute()
